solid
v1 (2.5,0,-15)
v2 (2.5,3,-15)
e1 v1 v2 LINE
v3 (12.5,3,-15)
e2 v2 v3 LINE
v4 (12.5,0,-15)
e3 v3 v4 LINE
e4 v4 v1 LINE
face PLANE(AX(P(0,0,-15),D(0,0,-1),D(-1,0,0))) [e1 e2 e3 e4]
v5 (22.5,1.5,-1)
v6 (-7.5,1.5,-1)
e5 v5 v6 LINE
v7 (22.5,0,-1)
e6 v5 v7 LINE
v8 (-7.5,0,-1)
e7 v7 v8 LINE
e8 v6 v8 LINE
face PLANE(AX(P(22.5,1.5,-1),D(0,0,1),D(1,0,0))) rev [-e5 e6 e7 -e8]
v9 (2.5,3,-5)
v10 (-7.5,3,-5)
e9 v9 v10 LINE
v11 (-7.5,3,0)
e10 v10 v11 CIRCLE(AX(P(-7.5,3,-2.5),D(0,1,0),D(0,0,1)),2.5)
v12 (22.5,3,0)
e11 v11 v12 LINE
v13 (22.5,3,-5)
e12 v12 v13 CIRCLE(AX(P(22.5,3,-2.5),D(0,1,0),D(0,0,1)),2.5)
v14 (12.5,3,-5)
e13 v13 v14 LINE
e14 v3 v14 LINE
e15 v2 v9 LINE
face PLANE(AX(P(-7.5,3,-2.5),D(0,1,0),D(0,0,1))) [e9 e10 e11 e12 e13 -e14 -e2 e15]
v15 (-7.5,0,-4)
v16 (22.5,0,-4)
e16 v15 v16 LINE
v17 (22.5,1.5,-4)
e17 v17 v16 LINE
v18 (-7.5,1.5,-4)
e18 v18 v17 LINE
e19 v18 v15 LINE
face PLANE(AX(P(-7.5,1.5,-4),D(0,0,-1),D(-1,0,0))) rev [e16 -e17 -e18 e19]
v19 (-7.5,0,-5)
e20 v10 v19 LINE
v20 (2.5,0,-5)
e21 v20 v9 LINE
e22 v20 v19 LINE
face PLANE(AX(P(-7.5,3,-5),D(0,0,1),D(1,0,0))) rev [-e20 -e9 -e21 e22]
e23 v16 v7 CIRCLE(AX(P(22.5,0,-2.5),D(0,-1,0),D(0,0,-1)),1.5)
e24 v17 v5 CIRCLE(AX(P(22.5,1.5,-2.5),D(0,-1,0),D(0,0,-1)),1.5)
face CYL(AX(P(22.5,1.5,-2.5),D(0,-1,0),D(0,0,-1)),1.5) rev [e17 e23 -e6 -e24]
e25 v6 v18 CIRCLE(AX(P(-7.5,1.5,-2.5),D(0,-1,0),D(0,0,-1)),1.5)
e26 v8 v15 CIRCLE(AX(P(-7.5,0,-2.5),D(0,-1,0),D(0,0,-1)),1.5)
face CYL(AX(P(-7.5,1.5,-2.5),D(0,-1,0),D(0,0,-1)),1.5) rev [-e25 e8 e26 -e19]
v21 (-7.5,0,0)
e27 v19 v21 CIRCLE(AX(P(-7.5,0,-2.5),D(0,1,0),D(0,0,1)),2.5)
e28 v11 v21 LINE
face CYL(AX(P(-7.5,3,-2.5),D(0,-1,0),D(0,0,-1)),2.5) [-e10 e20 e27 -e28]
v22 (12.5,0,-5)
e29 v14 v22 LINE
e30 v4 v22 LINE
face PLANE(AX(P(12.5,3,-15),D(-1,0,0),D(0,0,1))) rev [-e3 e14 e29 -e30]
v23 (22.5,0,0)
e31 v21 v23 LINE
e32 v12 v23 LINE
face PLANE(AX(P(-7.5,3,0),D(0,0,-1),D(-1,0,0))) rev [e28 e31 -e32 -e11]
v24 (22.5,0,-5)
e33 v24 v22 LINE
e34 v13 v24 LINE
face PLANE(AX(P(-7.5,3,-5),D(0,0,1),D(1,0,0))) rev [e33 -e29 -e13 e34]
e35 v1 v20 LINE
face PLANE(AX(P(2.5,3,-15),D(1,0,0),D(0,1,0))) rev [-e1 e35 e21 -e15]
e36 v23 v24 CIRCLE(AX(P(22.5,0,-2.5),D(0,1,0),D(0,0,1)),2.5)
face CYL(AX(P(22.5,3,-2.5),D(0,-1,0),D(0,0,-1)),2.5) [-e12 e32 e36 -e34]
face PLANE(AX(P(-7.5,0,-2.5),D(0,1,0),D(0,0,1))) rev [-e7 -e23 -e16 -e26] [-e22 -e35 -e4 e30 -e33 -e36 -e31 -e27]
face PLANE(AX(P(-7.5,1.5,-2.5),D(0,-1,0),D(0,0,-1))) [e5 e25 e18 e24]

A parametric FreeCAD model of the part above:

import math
import FreeCAD as App
import Part
import Sketcher
Q = App.Units.Quantity

doc = App.newDocument("Part")
body = doc.addObject("PartDesign::Body", "Body")

# Sketch on XZ plane
sketch1 = doc.addObject("Sketcher::SketchObject", "Sketch")
body.addObject(sketch1)
sketch1.AttachmentSupport = (doc.XZ_Plane, [""])
sketch1.MapMode = "FlatFace"
sketch1.addGeometry(Part.LineSegment(App.Vector(-7.5, 0, 0), App.Vector(22.5, 0, 0)), False)
sketch1.addGeometry(Part.ArcOfCircle(Part.Circle(App.Vector(22.5, -2.5, 0), App.Vector(0, 0, 1), 2.5), math.radians(-90), math.radians(90)), False)
sketch1.addGeometry(Part.LineSegment(App.Vector(22.5, -5, 0), App.Vector(-7.5, -5, 0)), False)
sketch1.addGeometry(Part.ArcOfCircle(Part.Circle(App.Vector(-7.5, -2.5, 0), App.Vector(0, 0, 1), 2.5), math.radians(89.99999), math.radians(270)), False)
sketch1.addConstraint(Sketcher.Constraint("Tangent", 0, 2, 1, 2))
sketch1.addConstraint(Sketcher.Constraint("Tangent", 1, 1, 2, 1))
sketch1.addConstraint(Sketcher.Constraint("Tangent", 2, 2, 3, 2))
sketch1.addConstraint(Sketcher.Constraint("Tangent", 3, 1, 0, 1))
sketch1.addConstraint(Sketcher.Constraint("Horizontal", 0))
sketch1.addConstraint(Sketcher.Constraint("Horizontal", 2))
sketch1.addConstraint(Sketcher.Constraint("PointOnObject", 0, 2, -1))
sketch1.addConstraint(Sketcher.Constraint("Radius", 1, Q("2.5 mm")))
sketch1.addConstraint(Sketcher.Constraint("DistanceX", 0, 1, 0, 2, Q("30 mm")))
sketch1.addConstraint(Sketcher.Constraint("DistanceX", -1, 1, 1, 3, Q("22.5 mm")))
pad1 = doc.addObject("PartDesign::Pad", "Pad")
body.addObject(pad1)
pad1.Profile = sketch1
pad1.Length = 3
pad1.Reversed = True

# Sketch on XZ plane
sketch2 = doc.addObject("Sketcher::SketchObject", "Sketch001")
body.addObject(sketch2)
sketch2.AttachmentSupport = (doc.XZ_Plane, [""])
sketch2.MapMode = "FlatFace"
sketch2.addGeometry(Part.LineSegment(App.Vector(-7.5, -4, 0), App.Vector(22.5, -4, 0)), False)
sketch2.addGeometry(Part.ArcOfCircle(Part.Circle(App.Vector(22.5, -2.5, 0), App.Vector(0, 0, 1), 1.5), math.radians(-90), math.radians(90)), False)
sketch2.addGeometry(Part.LineSegment(App.Vector(22.5, -1, 0), App.Vector(-7.5, -1, 0)), False)
sketch2.addGeometry(Part.ArcOfCircle(Part.Circle(App.Vector(-7.5, -2.5, 0), App.Vector(0, 0, 1), 1.5), math.radians(89.99999), math.radians(270)), False)
sketch2.addConstraint(Sketcher.Constraint("Tangent", 0, 2, 1, 1))
sketch2.addConstraint(Sketcher.Constraint("Tangent", 1, 2, 2, 1))
sketch2.addConstraint(Sketcher.Constraint("Tangent", 2, 2, 3, 1))
sketch2.addConstraint(Sketcher.Constraint("Tangent", 3, 2, 0, 1))
sketch2.addConstraint(Sketcher.Constraint("Horizontal", 0))
sketch2.addConstraint(Sketcher.Constraint("Horizontal", 2))
sketch2.addConstraint(Sketcher.Constraint("Radius", 1, Q("1.5 mm")))
sketch2.addConstraint(Sketcher.Constraint("DistanceX", 0, 1, 0, 2, Q("30 mm")))
sketch2.addConstraint(Sketcher.Constraint("DistanceY", 0, 2, -1, 1, Q("4 mm")))
sketch2.addConstraint(Sketcher.Constraint("DistanceX", -1, 1, 1, 3, Q("22.5 mm")))
pocket1 = doc.addObject("PartDesign::Pocket", "Pocket")
body.addObject(pocket1)
pocket1.Profile = sketch2
pocket1.Length = 1.5

# Sketch on XY plane
sketch3 = doc.addObject("Sketcher::SketchObject", "Sketch002")
body.addObject(sketch3)
sketch3.AttachmentSupport = (doc.XY_Plane, [""])
sketch3.MapMode = "FlatFace"
sketch3.AttachmentOffset = App.Placement(App.Vector(0, 0, -5), App.Rotation())
sketch3.addGeometry(Part.LineSegment(App.Vector(12.5, 3, 0), App.Vector(12.5, 0, 0)), False)
sketch3.addGeometry(Part.LineSegment(App.Vector(12.5, 0, 0), App.Vector(2.5, 0, 0)), False)
sketch3.addGeometry(Part.LineSegment(App.Vector(2.5, 0, 0), App.Vector(2.5, 3, 0)), False)
sketch3.addGeometry(Part.LineSegment(App.Vector(2.5, 3, 0), App.Vector(12.5, 3, 0)), False)
sketch3.addConstraint(Sketcher.Constraint("Coincident", 0, 2, 1, 1))
sketch3.addConstraint(Sketcher.Constraint("Coincident", 1, 2, 2, 1))
sketch3.addConstraint(Sketcher.Constraint("Coincident", 2, 2, 3, 1))
sketch3.addConstraint(Sketcher.Constraint("Coincident", 3, 2, 0, 1))
sketch3.addConstraint(Sketcher.Constraint("Vertical", 0))
sketch3.addConstraint(Sketcher.Constraint("Horizontal", 1))
sketch3.addConstraint(Sketcher.Constraint("Vertical", 2))
sketch3.addConstraint(Sketcher.Constraint("Horizontal", 3))
sketch3.addConstraint(Sketcher.Constraint("PointOnObject", 0, 2, -1))
sketch3.addConstraint(Sketcher.Constraint("DistanceX", 1, 2, 1, 1, Q("10 mm")))
sketch3.addConstraint(Sketcher.Constraint("DistanceY", 0, 2, 0, 1, Q("3 mm")))
sketch3.addConstraint(Sketcher.Constraint("DistanceX", -1, 1, 0, 2, Q("12.5 mm")))
pad2 = doc.addObject("PartDesign::Pad", "Pad001")
body.addObject(pad2)
pad2.Profile = sketch3
pad2.Length = 10
pad2.Reversed = True

doc.recompute()
